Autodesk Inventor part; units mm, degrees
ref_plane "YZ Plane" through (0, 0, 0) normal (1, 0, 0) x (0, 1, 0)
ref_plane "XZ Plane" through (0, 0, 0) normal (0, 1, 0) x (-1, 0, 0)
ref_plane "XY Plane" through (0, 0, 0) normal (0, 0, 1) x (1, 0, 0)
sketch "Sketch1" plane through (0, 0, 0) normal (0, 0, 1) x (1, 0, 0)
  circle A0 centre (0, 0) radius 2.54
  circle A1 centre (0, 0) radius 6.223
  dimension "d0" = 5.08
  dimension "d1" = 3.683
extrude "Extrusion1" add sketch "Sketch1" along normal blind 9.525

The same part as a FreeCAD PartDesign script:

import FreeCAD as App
import Part
import Sketcher

V = App.Vector
Q = App.Units.Quantity

doc = App.newDocument("Part")
body = doc.addObject("PartDesign::Body", "Body")

sketch1 = body.newObject("Sketcher::SketchObject", "Sketch")
sketch1.AttachmentSupport = (doc.getObject("XY_Plane"), [""])
sketch1.MapMode = "FlatFace"
sketch1.addGeometry([
    Part.Circle(V(0, 0, 0), V(0, 0, 1), 6.2),
    Part.Circle(V(0, 0, 0), V(0, 0, 1), 2.5),
], False)
sketch1.addConstraint([
    Sketcher.Constraint("Coincident", 0, 3, -1, 1),
    Sketcher.Constraint("Coincident", 1, 3, -1, 1),
    Sketcher.Constraint("Diameter", 1, Q("0.2 in")),
    Sketcher.Constraint("Diameter", 0, Q("0.49 in")),
])
pad1 = body.newObject("PartDesign::Pad", "Pad")
pad1.Profile = sketch1
pad1.Length = Q("0.375 in")

doc.recompute()
